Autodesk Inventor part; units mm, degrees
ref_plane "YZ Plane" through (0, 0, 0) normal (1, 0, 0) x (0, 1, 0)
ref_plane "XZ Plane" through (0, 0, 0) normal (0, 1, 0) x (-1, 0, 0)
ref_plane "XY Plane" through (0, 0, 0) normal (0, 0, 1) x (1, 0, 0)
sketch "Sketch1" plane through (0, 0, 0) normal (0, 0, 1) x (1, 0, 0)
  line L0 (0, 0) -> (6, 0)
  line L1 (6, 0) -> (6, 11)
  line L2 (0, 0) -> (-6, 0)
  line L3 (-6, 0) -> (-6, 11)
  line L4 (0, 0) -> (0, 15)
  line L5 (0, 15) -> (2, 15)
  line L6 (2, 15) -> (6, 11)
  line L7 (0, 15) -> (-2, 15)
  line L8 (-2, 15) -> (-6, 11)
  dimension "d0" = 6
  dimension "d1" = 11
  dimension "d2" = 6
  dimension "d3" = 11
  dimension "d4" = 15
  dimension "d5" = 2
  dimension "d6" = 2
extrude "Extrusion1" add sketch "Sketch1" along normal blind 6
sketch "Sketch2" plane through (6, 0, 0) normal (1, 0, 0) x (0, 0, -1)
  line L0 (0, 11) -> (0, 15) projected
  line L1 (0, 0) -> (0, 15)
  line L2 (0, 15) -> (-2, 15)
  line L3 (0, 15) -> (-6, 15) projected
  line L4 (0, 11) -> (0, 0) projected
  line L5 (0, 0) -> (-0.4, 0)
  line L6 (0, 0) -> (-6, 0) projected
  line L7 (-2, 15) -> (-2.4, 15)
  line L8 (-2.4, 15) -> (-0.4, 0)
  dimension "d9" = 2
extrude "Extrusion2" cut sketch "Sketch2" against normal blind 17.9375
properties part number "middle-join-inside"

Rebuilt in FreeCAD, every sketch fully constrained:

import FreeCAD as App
import Part
import Sketcher

V = App.Vector

doc = App.newDocument("Part")
body = doc.addObject("PartDesign::Body", "Body")

sketch1 = doc.addObject("Sketcher::SketchObject", "Sketch")
body.addObject(sketch1)
sketch1.AttachmentSupport = (doc.XY_Plane, [""])
sketch1.MapMode = "FlatFace"
sketch1.addGeometry(Part.LineSegment(V(2, 15, 0), V(-2, 15, 0)), False)
sketch1.addGeometry(Part.LineSegment(V(-2, 15, 0), V(-6, 11, 0)), False)
sketch1.addGeometry(Part.LineSegment(V(-6, 11, 0), V(-6, 0, 0)), False)
sketch1.addGeometry(Part.LineSegment(V(-6, 0, 0), V(6, 0, 0)), False)
sketch1.addGeometry(Part.LineSegment(V(6, 0, 0), V(6, 11, 0)), False)
sketch1.addGeometry(Part.LineSegment(V(6, 11, 0), V(2, 15, 0)), False)
sketch1.addConstraint(Sketcher.Constraint("Coincident", 0, 2, 1, 1))
sketch1.addConstraint(Sketcher.Constraint("Coincident", 1, 2, 2, 1))
sketch1.addConstraint(Sketcher.Constraint("Coincident", 2, 2, 3, 1))
sketch1.addConstraint(Sketcher.Constraint("Coincident", 3, 2, 4, 1))
sketch1.addConstraint(Sketcher.Constraint("Coincident", 4, 2, 5, 1))
sketch1.addConstraint(Sketcher.Constraint("Coincident", 5, 2, 0, 1))
sketch1.addConstraint(Sketcher.Constraint("Horizontal", 0))
sketch1.addConstraint(Sketcher.Constraint("Vertical", 2))
sketch1.addConstraint(Sketcher.Constraint("Horizontal", 3))
sketch1.addConstraint(Sketcher.Constraint("Vertical", 4))
sketch1.addConstraint(Sketcher.Constraint("Symmetric", 2, 2, 3, 2, -1, 1))
sketch1.addConstraint(Sketcher.Constraint("Perpendicular", 1, 5))
sketch1.addConstraint(Sketcher.Constraint("Horizontal", 1, 2, 4, 2))
sketch1.addConstraint(Sketcher.Constraint("Equal", 1, 5))
sketch1.addConstraint(Sketcher.Constraint("DistanceY", 2, 2, 2, 1, 11.0))
sketch1.addConstraint(Sketcher.Constraint("DistanceX", 0, 2, -1, 1, 2.0))
sketch1.addConstraint(Sketcher.Constraint("DistanceY", -1, 1, 0, 2, 15.0))
pad1 = doc.addObject("PartDesign::Pad", "Pad")
body.addObject(pad1)
pad1.Profile = sketch1
pad1.Length = 6

sketch2 = doc.addObject("Sketcher::SketchObject", "Sketch001")
body.addObject(sketch2)
sketch2.AttachmentSupport = (doc.YZ_Plane, [""])
sketch2.MapMode = "FlatFace"
sketch2.AttachmentOffset = App.Placement(V(0, 0, 6), App.Rotation())
sketch2.addGeometry(Part.LineSegment(V(0, 0, 0), V(15, 0, 0)), False)
sketch2.addGeometry(Part.LineSegment(V(15, 0, 0), V(15, 2.4, 0)), False)
sketch2.addGeometry(Part.LineSegment(V(15, 2.4, 0), V(0, 0.4, 0)), False)
sketch2.addGeometry(Part.LineSegment(V(0, 0.4, 0), V(0, 0, 0)), False)
sketch2.addConstraint(Sketcher.Constraint("Coincident", 0, 2, 1, 1))
sketch2.addConstraint(Sketcher.Constraint("Coincident", 1, 2, 2, 1))
sketch2.addConstraint(Sketcher.Constraint("Coincident", 2, 2, 3, 1))
sketch2.addConstraint(Sketcher.Constraint("Coincident", 3, 2, 0, 1))
sketch2.addConstraint(Sketcher.Constraint("Horizontal", 0))
sketch2.addConstraint(Sketcher.Constraint("Vertical", 1))
sketch2.addConstraint(Sketcher.Constraint("Vertical", 3))
sketch2.addConstraint(Sketcher.Constraint("Coincident", 3, 2, -1, 1))
sketch2.addConstraint(Sketcher.Constraint("DistanceY", 2, 2, 1, 2, 2.0))
sketch2.addConstraint(Sketcher.Constraint("DistanceX", 0, 1, 0, 2, 15.0))
sketch2.addConstraint(Sketcher.Constraint("DistanceY", 1, 1, 1, 2, 2.4))
pocket1 = doc.addObject("PartDesign::Pocket", "Pocket")
body.addObject(pocket1)
pocket1.Profile = sketch2
pocket1.Length = 17.9375

doc.recompute()
